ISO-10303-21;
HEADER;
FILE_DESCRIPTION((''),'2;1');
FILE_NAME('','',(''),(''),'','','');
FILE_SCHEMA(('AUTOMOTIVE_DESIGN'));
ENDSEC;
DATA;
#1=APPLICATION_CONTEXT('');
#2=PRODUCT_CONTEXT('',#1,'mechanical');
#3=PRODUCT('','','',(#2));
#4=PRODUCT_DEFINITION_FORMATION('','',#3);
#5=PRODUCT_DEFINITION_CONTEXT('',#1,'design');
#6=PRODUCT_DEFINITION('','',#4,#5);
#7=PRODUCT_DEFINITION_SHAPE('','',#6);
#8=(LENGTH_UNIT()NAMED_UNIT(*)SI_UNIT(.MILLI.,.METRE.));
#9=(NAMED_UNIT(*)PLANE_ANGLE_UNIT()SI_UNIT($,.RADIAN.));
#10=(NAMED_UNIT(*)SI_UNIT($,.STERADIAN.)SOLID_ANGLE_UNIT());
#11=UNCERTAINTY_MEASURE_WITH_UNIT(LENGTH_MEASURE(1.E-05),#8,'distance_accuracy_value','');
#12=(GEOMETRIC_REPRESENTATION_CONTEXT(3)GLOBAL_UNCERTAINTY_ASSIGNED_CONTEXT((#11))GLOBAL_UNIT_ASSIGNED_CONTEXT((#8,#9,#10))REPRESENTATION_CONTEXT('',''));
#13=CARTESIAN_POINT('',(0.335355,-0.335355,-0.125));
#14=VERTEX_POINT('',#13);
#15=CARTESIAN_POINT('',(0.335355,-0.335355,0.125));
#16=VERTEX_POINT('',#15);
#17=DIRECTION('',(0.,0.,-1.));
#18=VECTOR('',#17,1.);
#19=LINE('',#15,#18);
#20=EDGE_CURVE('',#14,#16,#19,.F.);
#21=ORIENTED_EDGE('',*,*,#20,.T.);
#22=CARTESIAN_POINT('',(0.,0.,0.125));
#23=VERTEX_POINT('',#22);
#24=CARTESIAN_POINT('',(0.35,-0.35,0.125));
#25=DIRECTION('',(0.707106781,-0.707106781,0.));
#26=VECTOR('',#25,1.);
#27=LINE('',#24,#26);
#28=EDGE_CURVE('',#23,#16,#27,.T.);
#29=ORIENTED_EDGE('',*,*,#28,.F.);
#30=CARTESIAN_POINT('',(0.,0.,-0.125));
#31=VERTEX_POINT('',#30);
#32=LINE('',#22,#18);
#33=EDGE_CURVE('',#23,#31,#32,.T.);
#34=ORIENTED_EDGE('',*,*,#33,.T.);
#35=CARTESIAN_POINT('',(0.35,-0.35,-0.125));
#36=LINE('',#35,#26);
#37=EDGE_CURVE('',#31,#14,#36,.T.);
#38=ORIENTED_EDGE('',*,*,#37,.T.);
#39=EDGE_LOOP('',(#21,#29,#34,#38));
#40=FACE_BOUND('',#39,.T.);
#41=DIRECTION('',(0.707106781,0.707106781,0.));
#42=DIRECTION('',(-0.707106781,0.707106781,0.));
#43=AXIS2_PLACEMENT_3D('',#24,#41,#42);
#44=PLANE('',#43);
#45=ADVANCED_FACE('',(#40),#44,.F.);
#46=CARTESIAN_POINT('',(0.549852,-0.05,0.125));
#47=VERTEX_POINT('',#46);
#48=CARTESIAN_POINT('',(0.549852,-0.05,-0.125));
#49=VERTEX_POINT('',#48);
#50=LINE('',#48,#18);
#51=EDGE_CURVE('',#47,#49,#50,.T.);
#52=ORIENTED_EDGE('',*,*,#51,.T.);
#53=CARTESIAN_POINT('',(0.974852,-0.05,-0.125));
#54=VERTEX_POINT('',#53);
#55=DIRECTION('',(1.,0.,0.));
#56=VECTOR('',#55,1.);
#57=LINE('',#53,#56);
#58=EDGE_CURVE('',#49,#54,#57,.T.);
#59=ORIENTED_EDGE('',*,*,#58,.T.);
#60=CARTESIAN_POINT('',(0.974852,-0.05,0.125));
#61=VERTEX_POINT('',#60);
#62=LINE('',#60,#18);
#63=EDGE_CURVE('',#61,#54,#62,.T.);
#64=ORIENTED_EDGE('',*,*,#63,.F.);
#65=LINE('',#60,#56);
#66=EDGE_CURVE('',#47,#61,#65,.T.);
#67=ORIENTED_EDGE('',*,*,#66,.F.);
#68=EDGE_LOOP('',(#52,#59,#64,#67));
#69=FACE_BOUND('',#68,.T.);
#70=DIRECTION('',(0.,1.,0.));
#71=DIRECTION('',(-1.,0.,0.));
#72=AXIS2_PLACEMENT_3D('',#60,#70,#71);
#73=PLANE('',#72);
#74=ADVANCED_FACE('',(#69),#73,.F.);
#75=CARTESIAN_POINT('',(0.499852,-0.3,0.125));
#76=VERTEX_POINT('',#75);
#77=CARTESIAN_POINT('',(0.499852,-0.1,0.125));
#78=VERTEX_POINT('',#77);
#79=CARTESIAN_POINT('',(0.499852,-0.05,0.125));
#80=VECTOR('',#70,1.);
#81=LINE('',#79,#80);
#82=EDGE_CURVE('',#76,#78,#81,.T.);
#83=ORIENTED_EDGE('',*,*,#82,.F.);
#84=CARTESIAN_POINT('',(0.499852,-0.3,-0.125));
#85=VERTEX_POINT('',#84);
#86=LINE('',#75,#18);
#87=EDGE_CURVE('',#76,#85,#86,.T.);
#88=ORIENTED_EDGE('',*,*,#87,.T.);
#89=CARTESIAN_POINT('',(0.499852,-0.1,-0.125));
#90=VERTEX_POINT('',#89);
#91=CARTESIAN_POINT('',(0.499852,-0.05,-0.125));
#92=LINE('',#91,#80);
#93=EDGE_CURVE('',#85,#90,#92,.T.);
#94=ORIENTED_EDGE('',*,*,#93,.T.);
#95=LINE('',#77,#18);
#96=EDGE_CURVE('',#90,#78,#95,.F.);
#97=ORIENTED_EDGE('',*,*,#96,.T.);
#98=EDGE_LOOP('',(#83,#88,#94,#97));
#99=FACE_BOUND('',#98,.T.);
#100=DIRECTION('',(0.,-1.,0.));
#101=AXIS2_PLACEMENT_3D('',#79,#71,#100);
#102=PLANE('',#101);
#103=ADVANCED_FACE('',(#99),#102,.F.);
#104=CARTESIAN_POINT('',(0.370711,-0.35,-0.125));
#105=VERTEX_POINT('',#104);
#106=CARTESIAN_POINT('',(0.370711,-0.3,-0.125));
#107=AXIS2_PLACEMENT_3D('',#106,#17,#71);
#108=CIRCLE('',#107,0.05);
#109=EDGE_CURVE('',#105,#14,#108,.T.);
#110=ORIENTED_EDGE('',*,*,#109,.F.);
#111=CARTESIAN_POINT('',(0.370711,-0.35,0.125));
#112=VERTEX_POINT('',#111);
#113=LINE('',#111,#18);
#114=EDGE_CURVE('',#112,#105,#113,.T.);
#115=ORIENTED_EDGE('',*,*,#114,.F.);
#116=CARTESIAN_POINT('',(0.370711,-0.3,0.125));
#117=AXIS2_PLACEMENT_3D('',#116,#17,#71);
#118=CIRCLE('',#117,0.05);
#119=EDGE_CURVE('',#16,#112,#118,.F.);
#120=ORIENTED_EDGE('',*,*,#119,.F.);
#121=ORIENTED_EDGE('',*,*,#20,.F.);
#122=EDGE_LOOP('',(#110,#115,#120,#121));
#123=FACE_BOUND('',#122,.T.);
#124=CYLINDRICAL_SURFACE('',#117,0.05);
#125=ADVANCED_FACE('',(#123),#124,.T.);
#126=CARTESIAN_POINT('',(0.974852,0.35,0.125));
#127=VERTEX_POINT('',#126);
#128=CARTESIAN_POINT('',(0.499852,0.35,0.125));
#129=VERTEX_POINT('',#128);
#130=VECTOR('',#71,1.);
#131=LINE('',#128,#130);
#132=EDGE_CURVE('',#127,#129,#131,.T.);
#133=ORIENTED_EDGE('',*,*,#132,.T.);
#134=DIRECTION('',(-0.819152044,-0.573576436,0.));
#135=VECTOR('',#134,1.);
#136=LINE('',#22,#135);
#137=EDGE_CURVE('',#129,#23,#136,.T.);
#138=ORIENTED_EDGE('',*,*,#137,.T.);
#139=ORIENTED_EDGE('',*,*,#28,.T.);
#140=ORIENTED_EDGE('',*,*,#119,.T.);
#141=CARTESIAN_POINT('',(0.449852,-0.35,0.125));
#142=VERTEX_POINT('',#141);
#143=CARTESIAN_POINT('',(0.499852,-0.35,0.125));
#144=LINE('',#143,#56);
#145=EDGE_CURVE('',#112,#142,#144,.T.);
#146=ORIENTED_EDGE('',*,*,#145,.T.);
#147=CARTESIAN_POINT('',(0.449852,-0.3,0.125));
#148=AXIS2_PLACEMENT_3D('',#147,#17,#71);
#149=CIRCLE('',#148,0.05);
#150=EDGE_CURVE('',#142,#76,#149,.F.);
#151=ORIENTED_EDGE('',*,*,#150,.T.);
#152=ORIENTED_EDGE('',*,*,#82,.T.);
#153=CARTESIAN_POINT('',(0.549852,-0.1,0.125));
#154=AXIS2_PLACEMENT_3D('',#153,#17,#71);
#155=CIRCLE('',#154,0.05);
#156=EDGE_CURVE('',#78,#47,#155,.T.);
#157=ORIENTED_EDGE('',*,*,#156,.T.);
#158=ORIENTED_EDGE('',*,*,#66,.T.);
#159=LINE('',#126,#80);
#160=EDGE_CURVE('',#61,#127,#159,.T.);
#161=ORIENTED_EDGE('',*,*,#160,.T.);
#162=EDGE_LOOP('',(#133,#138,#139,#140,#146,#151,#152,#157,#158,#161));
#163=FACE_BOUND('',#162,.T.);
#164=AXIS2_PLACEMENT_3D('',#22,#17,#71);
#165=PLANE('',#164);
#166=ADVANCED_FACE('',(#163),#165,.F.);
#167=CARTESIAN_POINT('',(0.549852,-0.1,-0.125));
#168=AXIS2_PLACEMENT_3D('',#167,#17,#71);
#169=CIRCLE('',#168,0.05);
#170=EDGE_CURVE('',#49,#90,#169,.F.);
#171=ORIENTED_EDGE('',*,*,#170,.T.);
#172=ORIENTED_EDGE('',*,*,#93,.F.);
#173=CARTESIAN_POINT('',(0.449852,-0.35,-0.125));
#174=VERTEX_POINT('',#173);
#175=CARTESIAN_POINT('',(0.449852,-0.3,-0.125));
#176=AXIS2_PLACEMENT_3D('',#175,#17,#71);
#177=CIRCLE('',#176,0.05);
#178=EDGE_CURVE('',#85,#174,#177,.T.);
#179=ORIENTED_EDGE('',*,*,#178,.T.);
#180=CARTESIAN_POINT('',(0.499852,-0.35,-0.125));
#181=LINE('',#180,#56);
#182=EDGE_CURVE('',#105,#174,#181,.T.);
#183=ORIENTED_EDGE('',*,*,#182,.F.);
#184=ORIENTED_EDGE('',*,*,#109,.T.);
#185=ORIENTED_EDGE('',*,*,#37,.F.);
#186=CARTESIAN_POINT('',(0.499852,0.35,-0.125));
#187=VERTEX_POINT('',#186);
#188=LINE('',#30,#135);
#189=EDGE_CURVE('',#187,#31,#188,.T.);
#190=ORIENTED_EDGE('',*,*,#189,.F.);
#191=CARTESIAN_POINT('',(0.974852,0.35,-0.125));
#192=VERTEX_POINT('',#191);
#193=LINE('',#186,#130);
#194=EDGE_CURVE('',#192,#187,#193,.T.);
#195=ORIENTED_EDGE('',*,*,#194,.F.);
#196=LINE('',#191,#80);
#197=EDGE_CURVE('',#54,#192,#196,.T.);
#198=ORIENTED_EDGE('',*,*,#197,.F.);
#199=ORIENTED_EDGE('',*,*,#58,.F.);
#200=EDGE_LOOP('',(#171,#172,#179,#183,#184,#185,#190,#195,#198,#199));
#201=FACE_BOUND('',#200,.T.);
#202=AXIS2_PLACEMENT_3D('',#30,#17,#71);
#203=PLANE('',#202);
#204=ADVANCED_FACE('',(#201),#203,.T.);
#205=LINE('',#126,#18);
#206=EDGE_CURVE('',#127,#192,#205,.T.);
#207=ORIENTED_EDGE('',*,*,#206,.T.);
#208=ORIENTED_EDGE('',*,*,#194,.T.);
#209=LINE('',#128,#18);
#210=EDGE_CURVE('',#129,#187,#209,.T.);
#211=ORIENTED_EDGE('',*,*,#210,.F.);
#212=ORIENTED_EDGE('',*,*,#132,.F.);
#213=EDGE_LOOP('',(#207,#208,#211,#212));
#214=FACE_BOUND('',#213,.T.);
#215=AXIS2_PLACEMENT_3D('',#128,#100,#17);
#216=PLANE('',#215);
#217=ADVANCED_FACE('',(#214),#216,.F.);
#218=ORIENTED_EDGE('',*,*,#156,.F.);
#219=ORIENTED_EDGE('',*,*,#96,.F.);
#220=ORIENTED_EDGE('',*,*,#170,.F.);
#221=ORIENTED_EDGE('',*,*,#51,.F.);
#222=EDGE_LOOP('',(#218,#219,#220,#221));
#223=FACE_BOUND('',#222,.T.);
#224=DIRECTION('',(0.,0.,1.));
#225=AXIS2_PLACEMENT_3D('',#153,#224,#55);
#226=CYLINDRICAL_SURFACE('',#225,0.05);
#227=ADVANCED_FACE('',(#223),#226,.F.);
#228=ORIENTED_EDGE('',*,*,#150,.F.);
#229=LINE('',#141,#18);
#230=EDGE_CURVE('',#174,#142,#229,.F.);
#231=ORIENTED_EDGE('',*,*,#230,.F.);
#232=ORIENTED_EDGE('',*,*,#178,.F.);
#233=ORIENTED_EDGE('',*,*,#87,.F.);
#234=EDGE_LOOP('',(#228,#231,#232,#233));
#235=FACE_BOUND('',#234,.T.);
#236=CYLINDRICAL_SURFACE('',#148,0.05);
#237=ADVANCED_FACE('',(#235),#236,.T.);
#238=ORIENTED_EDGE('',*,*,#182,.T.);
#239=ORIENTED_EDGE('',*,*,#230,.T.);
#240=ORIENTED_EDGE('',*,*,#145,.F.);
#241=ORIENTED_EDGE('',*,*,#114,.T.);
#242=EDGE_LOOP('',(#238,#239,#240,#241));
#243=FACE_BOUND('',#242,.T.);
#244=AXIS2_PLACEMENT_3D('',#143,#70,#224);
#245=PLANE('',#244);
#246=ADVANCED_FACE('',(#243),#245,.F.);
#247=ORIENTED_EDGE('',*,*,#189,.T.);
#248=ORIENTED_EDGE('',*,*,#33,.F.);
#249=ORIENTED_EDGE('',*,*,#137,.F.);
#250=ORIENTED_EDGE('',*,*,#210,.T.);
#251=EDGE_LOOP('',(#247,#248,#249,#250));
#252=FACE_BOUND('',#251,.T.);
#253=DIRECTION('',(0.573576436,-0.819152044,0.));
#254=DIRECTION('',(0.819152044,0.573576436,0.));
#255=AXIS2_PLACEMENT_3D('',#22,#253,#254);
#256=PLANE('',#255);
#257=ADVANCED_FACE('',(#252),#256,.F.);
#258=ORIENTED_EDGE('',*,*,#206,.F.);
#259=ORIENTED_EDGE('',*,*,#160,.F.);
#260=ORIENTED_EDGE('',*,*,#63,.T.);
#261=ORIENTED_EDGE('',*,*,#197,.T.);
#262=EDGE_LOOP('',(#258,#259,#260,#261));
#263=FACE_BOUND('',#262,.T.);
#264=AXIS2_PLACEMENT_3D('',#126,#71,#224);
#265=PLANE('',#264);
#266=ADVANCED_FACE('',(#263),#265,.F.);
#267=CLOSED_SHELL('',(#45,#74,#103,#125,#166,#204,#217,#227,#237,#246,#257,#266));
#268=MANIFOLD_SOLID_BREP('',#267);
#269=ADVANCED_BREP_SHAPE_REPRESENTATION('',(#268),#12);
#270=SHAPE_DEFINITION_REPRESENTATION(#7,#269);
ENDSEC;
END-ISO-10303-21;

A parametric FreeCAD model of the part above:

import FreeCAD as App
import Part
import Sketcher
Q = App.Units.Quantity


def edges_at(feature, points):
    """Names of the edges that pass closest to the given points."""
    edges = feature.Shape.Edges
    near = lambda p: min(range(len(edges)), key=lambda i: edges[i].distToShape(Part.Vertex(*p))[0])
    return sorted({f"Edge{near(p) + 1}" for p in points})


def add_polygon(sketch, points):
    """Adds a closed chain of lines whose ends are joined by coincident constraints."""
    first, n = sketch.GeometryCount, len(points)
    for a, b in zip(points, points[1:] + points[:1]):
        sketch.addGeometry(Part.LineSegment(App.Vector(*a, 0), App.Vector(*b, 0)), False)
    for i in range(n):
        sketch.addConstraint(Sketcher.Constraint("Coincident", first + i, 2, first + (i + 1) % n, 1))

doc = App.newDocument("Part")
params = doc.addObject("Spreadsheet::Sheet", "Params")
for row, (alias, value) in enumerate([
    ("sketch1_height", "0.3 mm"),
    ("sketch1_height2", "0.4 mm"),
    ("pad1_length", "0.25 mm"),
    ("fillet_radius", "0.05 mm"),
], start=1):
    params.set(f"A{row}", alias)
    params.set(f"B{row}", "=" + value)
    params.setAlias(f"B{row}", alias)

body = doc.addObject("PartDesign::Body", "Body")

sketch1 = body.newObject("Sketcher::SketchObject", "Sketch")
sketch1.AttachmentSupport = (doc.getObject("XY_Plane"), [""])
sketch1.MapMode = "FlatFace"
add_polygon(sketch1, [(0.5, 0.35), (0, 0), (0.35, -0.35), (0.5, -0.35), (0.5, -0.05), (0.97, -0.05), (0.97, 0.35)])
sketch1.addConstraint(Sketcher.Constraint("Horizontal", 2))
sketch1.addConstraint(Sketcher.Constraint("Vertical", 3))
sketch1.addConstraint(Sketcher.Constraint("Horizontal", 4))
sketch1.addConstraint(Sketcher.Constraint("Vertical", 5))
sketch1.addConstraint(Sketcher.Constraint("Horizontal", 6))
sketch1.addConstraint(Sketcher.Constraint("Coincident", 0, 2, -1, 1))
sketch1.addConstraint(Sketcher.Constraint("Symmetric", 2, 2, 6, 2, -1))
sketch1.addConstraint(Sketcher.Constraint("Angle", 0, Q("-145 deg")))
sketch1.addConstraint(Sketcher.Constraint("Angle", 1, Q("-45 deg")))
sketch1.addConstraint(Sketcher.Constraint("DistanceY", 3, 1, 3, 2, 0.3))
sketch1.addConstraint(Sketcher.Constraint("DistanceY", 5, 1, 5, 2, 0.4))
sketch1.addConstraint(Sketcher.Constraint("DistanceX", 4, 1, 4, 2, 0.475))
sketch1.setExpression("Constraints[16]", "Params.sketch1_height")
sketch1.setExpression("Constraints[17]", "Params.sketch1_height2")
pad1 = body.newObject("PartDesign::Pad", "Pad")
pad1.Profile = sketch1
pad1.setExpression("Length", "Params.pad1_length")
pad1.Midplane = True
doc.recompute()

fillet = body.newObject("PartDesign::Fillet", "Fillet")
fillet.Base = (pad1, edges_at(pad1, [(0.5, -0.05, 0), (0.5, -0.35, 0), (0.35, -0.35, 0)]))
fillet.setExpression("Radius", "Params.fillet_radius")

doc.recompute()
